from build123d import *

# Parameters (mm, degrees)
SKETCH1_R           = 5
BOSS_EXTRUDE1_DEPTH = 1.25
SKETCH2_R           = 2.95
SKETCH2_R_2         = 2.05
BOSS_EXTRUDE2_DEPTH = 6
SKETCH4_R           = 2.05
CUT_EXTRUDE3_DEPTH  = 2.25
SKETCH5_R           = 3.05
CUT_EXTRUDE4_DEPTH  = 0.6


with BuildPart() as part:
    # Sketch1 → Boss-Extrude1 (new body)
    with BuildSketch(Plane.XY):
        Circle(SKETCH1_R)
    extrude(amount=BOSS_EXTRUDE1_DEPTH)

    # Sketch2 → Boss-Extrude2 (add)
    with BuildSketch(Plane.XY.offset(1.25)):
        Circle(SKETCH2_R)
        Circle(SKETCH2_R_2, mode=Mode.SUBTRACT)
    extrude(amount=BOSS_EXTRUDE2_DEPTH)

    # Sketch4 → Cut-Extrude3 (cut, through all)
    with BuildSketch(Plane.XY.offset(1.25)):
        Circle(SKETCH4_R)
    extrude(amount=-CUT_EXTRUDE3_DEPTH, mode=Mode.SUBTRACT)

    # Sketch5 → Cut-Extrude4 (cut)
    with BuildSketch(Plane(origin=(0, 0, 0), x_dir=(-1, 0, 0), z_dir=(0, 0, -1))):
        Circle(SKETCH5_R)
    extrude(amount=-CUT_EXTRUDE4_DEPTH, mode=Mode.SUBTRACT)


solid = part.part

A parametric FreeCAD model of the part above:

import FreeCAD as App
import Part
import Sketcher

doc = App.newDocument("Part")
params = doc.addObject("Spreadsheet::Sheet", "Params")
for row, (alias, value) in enumerate([
    ("sketch1_diameter", "10 mm"),
    ("pad1_length", "1.25 mm"),
    ("sketch2_diameter", "5.9 mm"),
    ("sketch2_diameter2", "4.1 mm"),
    ("pad2_length", "6 mm"),
    ("sketch3_diameter", "4.1 mm"),
    ("sketch4_diameter", "6.1 mm"),
    ("pocket2_length", "0.6 mm"),
], start=1):
    params.set(f"A{row}", alias)
    params.set(f"B{row}", "=" + value)
    params.setAlias(f"B{row}", alias)

body = doc.addObject("PartDesign::Body", "Body")

sketch1 = body.newObject("Sketcher::SketchObject", "Sketch")
sketch1.AttachmentSupport = (doc.getObject("XY_Plane"), [""])
sketch1.MapMode = "FlatFace"
sketch1.addGeometry(Part.Circle(App.Vector(0, 0, 0), App.Vector(0, 0, 1), 5), False)
sketch1.addConstraint([
    Sketcher.Constraint("Coincident", 0, 3, -1, 1),
    Sketcher.Constraint("Diameter", 0, 10.0),
])
sketch1.setExpression("Constraints[1]", "Params.sketch1_diameter")
pad1 = body.newObject("PartDesign::Pad", "Pad")
pad1.Profile = sketch1
pad1.setExpression("Length", "Params.pad1_length")

sketch2 = body.newObject("Sketcher::SketchObject", "Sketch001")
sketch2.AttachmentSupport = (doc.getObject("XY_Plane"), [""])
sketch2.MapMode = "FlatFace"
sketch2.AttachmentOffset = App.Placement(App.Vector(0, 0, 1.25), App.Rotation())
sketch2.addGeometry([
    Part.Circle(App.Vector(0, 0, 0), App.Vector(0, 0, 1), 3),
    Part.Circle(App.Vector(0, 0, 0), App.Vector(0, 0, 1), 2),
], False)
sketch2.addConstraint([
    Sketcher.Constraint("Coincident", 0, 3, -1, 1),
    Sketcher.Constraint("Coincident", 1, 3, -1, 1),
    Sketcher.Constraint("Diameter", 0, 5.9),
    Sketcher.Constraint("Diameter", 1, 4.1),
])
sketch2.setExpression("Constraints[2]", "Params.sketch2_diameter")
sketch2.setExpression("Constraints[3]", "Params.sketch2_diameter2")
pad2 = body.newObject("PartDesign::Pad", "Pad001")
pad2.Profile = sketch2
pad2.setExpression("Length", "Params.pad2_length")

sketch3 = body.newObject("Sketcher::SketchObject", "Sketch002")
sketch3.AttachmentSupport = (doc.getObject("XY_Plane"), [""])
sketch3.MapMode = "FlatFace"
sketch3.AttachmentOffset = App.Placement(App.Vector(0, 0, 1.25), App.Rotation())
sketch3.addGeometry(Part.Circle(App.Vector(0, 0, 0), App.Vector(0, 0, 1), 2), False)
sketch3.addConstraint([
    Sketcher.Constraint("Coincident", 0, 3, -1, 1),
    Sketcher.Constraint("Diameter", 0, 4.1),
])
sketch3.setExpression("Constraints[1]", "Params.sketch3_diameter")
pocket1 = body.newObject("PartDesign::Pocket", "Pocket")
pocket1.Profile = sketch3
pocket1.Type = "ThroughAll"

sketch4 = body.newObject("Sketcher::SketchObject", "Sketch003")
sketch4.AttachmentSupport = (doc.getObject("XY_Plane"), [""])
sketch4.MapMode = "FlatFace"
sketch4.addGeometry(Part.Circle(App.Vector(0, 0, 0), App.Vector(0, 0, 1), 3), False)
sketch4.addConstraint([
    Sketcher.Constraint("Coincident", 0, 3, -1, 1),
    Sketcher.Constraint("Diameter", 0, 6.1),
])
sketch4.setExpression("Constraints[1]", "Params.sketch4_diameter")
pocket2 = body.newObject("PartDesign::Pocket", "Pocket001")
pocket2.Profile = sketch4
pocket2.setExpression("Length", "Params.pocket2_length")
pocket2.Reversed = True

doc.recompute()
